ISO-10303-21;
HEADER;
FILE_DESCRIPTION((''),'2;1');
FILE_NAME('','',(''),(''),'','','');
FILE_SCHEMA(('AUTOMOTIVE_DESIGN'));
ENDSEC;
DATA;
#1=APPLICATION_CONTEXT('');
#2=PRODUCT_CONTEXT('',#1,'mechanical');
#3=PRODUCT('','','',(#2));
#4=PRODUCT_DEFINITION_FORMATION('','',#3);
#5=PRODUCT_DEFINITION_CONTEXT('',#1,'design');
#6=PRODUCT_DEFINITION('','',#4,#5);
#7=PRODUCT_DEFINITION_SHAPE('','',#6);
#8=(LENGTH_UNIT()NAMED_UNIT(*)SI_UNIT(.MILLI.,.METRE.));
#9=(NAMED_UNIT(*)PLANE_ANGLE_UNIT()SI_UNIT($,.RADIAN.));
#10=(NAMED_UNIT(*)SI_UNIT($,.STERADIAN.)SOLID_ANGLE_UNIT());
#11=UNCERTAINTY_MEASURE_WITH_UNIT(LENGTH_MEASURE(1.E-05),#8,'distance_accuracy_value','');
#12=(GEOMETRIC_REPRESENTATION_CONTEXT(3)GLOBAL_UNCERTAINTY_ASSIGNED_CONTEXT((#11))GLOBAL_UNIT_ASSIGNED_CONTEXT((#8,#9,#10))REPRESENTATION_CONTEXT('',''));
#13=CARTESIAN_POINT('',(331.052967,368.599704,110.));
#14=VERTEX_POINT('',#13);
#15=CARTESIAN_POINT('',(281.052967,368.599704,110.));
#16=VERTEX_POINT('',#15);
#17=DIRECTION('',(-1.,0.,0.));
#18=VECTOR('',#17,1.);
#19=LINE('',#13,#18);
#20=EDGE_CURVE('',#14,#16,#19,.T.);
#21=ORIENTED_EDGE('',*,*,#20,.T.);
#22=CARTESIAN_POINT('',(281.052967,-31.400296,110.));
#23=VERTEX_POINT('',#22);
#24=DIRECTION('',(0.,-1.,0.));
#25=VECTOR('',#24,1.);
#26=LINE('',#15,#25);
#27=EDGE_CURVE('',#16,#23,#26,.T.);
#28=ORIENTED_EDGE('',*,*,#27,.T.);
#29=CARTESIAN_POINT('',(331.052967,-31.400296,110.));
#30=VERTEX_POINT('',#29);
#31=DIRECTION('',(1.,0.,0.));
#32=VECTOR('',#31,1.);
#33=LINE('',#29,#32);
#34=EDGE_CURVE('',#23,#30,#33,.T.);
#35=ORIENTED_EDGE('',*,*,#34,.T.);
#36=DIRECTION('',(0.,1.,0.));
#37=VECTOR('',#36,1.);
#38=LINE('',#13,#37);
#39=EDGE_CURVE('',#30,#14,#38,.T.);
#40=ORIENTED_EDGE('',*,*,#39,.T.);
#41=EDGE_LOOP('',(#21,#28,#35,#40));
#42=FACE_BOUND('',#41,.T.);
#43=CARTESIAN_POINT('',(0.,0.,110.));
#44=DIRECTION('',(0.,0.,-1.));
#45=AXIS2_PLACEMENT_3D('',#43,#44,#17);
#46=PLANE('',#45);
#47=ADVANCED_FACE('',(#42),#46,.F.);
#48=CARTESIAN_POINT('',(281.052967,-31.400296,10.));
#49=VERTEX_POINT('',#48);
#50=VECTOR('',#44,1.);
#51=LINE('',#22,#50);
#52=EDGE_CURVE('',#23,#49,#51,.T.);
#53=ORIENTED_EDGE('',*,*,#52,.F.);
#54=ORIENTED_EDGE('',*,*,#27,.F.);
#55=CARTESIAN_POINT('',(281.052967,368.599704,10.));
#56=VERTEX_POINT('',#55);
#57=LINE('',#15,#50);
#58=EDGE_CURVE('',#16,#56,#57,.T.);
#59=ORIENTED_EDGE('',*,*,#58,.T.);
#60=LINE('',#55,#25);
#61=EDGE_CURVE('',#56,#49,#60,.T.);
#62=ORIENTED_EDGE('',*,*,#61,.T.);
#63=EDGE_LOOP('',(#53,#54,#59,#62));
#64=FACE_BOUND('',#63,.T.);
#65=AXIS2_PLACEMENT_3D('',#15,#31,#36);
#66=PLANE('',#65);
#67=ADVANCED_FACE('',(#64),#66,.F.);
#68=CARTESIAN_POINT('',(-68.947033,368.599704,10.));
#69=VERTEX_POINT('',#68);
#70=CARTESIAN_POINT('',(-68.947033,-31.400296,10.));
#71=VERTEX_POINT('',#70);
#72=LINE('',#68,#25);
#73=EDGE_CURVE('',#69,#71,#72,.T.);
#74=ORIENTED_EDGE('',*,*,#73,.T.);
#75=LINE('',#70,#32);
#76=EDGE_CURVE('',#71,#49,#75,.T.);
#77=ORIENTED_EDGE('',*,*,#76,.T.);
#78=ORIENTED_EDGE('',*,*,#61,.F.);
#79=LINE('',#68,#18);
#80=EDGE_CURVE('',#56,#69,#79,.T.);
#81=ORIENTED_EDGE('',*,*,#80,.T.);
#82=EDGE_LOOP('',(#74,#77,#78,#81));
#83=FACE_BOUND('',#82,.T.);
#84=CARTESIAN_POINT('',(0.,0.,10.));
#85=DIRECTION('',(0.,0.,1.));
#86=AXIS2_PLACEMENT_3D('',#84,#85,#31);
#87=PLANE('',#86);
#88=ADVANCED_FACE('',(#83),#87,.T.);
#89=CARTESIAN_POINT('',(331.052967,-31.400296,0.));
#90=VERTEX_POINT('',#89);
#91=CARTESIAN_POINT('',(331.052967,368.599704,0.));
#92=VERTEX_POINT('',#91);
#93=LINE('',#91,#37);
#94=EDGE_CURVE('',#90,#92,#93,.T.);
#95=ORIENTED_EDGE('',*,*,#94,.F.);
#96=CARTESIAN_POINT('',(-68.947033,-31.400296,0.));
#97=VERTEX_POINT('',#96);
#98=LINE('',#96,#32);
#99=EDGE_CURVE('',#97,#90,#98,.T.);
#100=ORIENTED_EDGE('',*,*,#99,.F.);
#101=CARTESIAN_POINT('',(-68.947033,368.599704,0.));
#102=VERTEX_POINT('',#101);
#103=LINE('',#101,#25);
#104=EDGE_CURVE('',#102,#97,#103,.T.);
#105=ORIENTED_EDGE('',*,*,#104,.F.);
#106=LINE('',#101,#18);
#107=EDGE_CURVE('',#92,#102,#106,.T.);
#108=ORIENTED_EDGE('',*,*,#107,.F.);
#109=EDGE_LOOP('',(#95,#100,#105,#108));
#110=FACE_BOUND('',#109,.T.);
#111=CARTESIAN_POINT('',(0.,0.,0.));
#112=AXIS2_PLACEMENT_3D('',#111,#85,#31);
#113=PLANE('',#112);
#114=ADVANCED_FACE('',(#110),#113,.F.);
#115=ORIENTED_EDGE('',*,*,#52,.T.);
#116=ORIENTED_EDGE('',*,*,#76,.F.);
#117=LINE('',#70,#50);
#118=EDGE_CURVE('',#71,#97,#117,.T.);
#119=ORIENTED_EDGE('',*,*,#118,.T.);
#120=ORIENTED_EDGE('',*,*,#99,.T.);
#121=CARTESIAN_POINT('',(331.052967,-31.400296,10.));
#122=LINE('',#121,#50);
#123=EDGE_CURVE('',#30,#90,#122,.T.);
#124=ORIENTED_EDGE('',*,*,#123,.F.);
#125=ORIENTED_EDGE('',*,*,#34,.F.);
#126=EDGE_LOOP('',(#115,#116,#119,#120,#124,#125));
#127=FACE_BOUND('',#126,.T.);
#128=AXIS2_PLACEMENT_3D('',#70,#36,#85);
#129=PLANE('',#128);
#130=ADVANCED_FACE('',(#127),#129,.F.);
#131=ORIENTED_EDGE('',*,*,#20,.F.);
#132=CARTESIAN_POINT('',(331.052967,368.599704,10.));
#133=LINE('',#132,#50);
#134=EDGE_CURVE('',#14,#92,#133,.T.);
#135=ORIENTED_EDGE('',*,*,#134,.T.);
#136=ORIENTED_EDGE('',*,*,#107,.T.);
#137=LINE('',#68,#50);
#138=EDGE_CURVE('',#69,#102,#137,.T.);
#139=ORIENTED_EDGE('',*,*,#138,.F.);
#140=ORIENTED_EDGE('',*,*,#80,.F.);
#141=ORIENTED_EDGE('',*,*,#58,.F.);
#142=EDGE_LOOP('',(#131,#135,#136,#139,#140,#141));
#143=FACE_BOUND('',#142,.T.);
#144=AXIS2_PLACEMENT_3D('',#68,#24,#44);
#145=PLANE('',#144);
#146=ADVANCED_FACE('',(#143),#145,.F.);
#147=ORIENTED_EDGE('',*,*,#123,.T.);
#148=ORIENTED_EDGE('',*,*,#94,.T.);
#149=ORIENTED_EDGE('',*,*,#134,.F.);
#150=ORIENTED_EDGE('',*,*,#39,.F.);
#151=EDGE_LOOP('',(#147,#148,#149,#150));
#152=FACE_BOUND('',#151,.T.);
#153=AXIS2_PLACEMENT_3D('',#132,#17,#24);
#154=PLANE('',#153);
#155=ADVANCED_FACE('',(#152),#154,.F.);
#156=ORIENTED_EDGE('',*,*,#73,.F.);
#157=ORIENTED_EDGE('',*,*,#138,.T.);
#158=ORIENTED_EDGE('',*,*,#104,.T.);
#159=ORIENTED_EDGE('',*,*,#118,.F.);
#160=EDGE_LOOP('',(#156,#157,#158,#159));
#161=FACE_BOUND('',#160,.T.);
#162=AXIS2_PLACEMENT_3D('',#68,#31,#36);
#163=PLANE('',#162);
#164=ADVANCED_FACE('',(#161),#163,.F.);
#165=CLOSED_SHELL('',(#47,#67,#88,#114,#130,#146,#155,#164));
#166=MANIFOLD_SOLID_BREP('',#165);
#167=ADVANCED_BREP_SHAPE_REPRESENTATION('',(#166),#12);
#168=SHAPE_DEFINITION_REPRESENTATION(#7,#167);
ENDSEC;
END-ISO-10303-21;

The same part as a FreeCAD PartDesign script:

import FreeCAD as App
import Part
import Sketcher


def add_polygon(sketch, points):
    """Adds a closed chain of lines whose ends are joined by coincident constraints."""
    first, n = sketch.GeometryCount, len(points)
    for a, b in zip(points, points[1:] + points[:1]):
        sketch.addGeometry(Part.LineSegment(App.Vector(*a, 0), App.Vector(*b, 0)), False)
    for i in range(n):
        sketch.addConstraint(Sketcher.Constraint("Coincident", first + i, 2, first + (i + 1) % n, 1))

doc = App.newDocument("Part")
params = doc.addObject("Spreadsheet::Sheet", "Params")
for row, (alias, value) in enumerate([
    ("sketch1_width", "400 mm"),
    ("pad1_length", "10 mm"),
    ("sketch2_width", "50 mm"),
    ("sketch2_height", "400 mm"),
    ("pad2_length", "100 mm"),
], start=1):
    params.set(f"A{row}", alias)
    params.set(f"B{row}", "=" + value)
    params.setAlias(f"B{row}", alias)

body = doc.addObject("PartDesign::Body", "Body")

sketch1 = doc.addObject("Sketcher::SketchObject", "Sketch")
body.addObject(sketch1)
sketch1.AttachmentSupport = (doc.XY_Plane, [""])
sketch1.MapMode = "FlatFace"
add_polygon(sketch1, [(-69, 369), (-69, -31), (331, -31), (331, 369)])
sketch1.addConstraint([
    Sketcher.Constraint("Vertical", 0),
    Sketcher.Constraint("Horizontal", 1),
    Sketcher.Constraint("Vertical", 2),
    Sketcher.Constraint("Horizontal", 3),
    Sketcher.Constraint("Equal", 3, 0),
    Sketcher.Constraint("DistanceX", 1, 1, 1, 2, 400.0),
    Sketcher.Constraint("DistanceX", 0, 2, -1, 1, 68.947033),
    Sketcher.Constraint("DistanceY", 0, 2, -1, 1, 31.400296),
])
sketch1.setExpression("Constraints[9]", "Params.sketch1_width")
pad1 = doc.addObject("PartDesign::Pad", "Pad")
body.addObject(pad1)
pad1.Profile = sketch1
pad1.setExpression("Length", "Params.pad1_length")

sketch2 = doc.addObject("Sketcher::SketchObject", "Sketch001")
body.addObject(sketch2)
sketch2.AttachmentSupport = (doc.XY_Plane, [""])
sketch2.MapMode = "FlatFace"
sketch2.AttachmentOffset = App.Placement(App.Vector(0, 0, 10), App.Rotation())
add_polygon(sketch2, [(281, 369), (281, -31), (331, -31), (331, 369)])
sketch2.addConstraint([
    Sketcher.Constraint("Vertical", 0),
    Sketcher.Constraint("Horizontal", 1),
    Sketcher.Constraint("Vertical", 2),
    Sketcher.Constraint("Horizontal", 3),
    Sketcher.Constraint("DistanceX", 1, 1, 1, 2, 50.0),
    Sketcher.Constraint("DistanceY", 0, 2, 0, 1, 400.0),
    Sketcher.Constraint("DistanceX", -1, 1, 0, 2, 281.052967),
    Sketcher.Constraint("DistanceY", 0, 2, -1, 1, 31.400296),
])
sketch2.setExpression("Constraints[8]", "Params.sketch2_width")
sketch2.setExpression("Constraints[9]", "Params.sketch2_height")
pad2 = doc.addObject("PartDesign::Pad", "Pad001")
body.addObject(pad2)
pad2.Profile = sketch2
pad2.setExpression("Length", "Params.pad2_length")

doc.recompute()
